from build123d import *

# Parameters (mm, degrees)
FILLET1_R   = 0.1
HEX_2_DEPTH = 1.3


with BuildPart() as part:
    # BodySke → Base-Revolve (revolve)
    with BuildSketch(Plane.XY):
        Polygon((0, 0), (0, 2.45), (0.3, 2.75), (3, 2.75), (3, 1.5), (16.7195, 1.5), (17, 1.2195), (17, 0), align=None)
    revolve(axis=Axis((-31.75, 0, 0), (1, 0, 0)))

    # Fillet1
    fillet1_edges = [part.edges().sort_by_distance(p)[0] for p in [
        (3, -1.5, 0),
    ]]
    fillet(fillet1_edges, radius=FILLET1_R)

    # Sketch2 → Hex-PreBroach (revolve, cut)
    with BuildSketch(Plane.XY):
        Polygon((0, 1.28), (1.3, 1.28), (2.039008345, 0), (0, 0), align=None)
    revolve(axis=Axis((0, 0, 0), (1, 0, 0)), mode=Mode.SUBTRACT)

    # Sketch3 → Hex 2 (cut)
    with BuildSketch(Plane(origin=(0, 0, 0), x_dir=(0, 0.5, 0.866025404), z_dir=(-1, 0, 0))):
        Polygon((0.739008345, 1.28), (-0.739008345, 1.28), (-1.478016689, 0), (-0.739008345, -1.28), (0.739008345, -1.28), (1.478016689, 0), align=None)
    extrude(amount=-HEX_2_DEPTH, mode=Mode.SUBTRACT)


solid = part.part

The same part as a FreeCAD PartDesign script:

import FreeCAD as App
import Part
import Sketcher
from FreeCAD import Vector
Q = App.Units.Quantity


def edges_at(feature, points):
    """Names of the edges that pass closest to the given points."""
    edges = feature.Shape.Edges
    near = lambda p: min(range(len(edges)), key=lambda i: edges[i].distToShape(Part.Vertex(*p))[0])
    return sorted({f"Edge{near(p) + 1}" for p in points})

doc = App.newDocument("Part")
params = doc.addObject("Spreadsheet::Sheet", "Params")
for row, (alias, value) in enumerate([
    ("sketch1_width", "17 mm"),
    ("sketch1_width2", "2.7 mm"),
    ("sketch1_height", "2.45 mm"),
    ("sketch1_height2", "1.25 mm"),
    ("revolution_angle", "360 deg"),
    ("fillet_radius", "0.1 mm"),
    ("sketch2_width", "1.3 mm"),
    ("sketch2_height", "1.28 mm"),
    ("groove_angle", "360 deg"),
    ("pocket1_length", "1.3 mm"),
], start=1):
    params.set(f"A{row}", alias)
    params.set(f"B{row}", "=" + value)
    params.setAlias(f"B{row}", alias)

body = doc.addObject("PartDesign::Body", "Body")

sketch1 = body.newObject("Sketcher::SketchObject", "Sketch")
sketch1.AttachmentSupport = (doc.getObject("XY_Plane"), [""])
sketch1.MapMode = "FlatFace"
sketch1.addGeometry([
    Part.LineSegment(Vector(0, 2.45, 0), Vector(0, 0, 0)),
    Part.LineSegment(Vector(0, 0, 0), Vector(17, 0, 0)),
    Part.LineSegment(Vector(17, 0, 0), Vector(17, 1.22, 0)),
    Part.LineSegment(Vector(17, 1.22, 0), Vector(16.72, 1.5, 0)),
    Part.LineSegment(Vector(16.72, 1.5, 0), Vector(3, 1.5, 0)),
    Part.LineSegment(Vector(3, 1.5, 0), Vector(3, 2.75, 0)),
    Part.LineSegment(Vector(3, 2.75, 0), Vector(0.3, 2.75, 0)),
    Part.LineSegment(Vector(0.3, 2.75, 0), Vector(0, 2.45, 0)),
], False)
sketch1.addConstraint([
    Sketcher.Constraint("Coincident", 0, 2, 1, 1),
    Sketcher.Constraint("Coincident", 1, 2, 2, 1),
    Sketcher.Constraint("Coincident", 2, 2, 3, 1),
    Sketcher.Constraint("Coincident", 3, 2, 4, 1),
    Sketcher.Constraint("Coincident", 4, 2, 5, 1),
    Sketcher.Constraint("Coincident", 5, 2, 6, 1),
    Sketcher.Constraint("Coincident", 6, 2, 7, 1),
    Sketcher.Constraint("Coincident", 7, 2, 0, 1),
    Sketcher.Constraint("Vertical", 0),
    Sketcher.Constraint("Horizontal", 1),
    Sketcher.Constraint("Vertical", 2),
    Sketcher.Constraint("Horizontal", 4),
    Sketcher.Constraint("Vertical", 5),
    Sketcher.Constraint("Horizontal", 6),
    Sketcher.Constraint("Coincident", 0, 2, -1, 1),
    Sketcher.Constraint("Perpendicular", 3, 7),
    Sketcher.Constraint("DistanceX", 1, 1, 1, 2, Q("17 mm")),
    Sketcher.Constraint("Angle", 3, Q("135 deg")),
    Sketcher.Constraint("DistanceX", 6, 2, 6, 1, Q("2.7 mm")),
    Sketcher.Constraint("DistanceX", -1, 1, 4, 2, Q("3 mm")),
    Sketcher.Constraint("DistanceY", 0, 2, 0, 1, Q("2.45 mm")),
    Sketcher.Constraint("DistanceY", 5, 1, 5, 2, Q("1.25 mm")),
    Sketcher.Constraint("DistanceX", 4, 2, 4, 1, Q("13.7195 mm")),
])
sketch1.setExpression("Constraints[16]", "Params.sketch1_width")
sketch1.setExpression("Constraints[18]", "Params.sketch1_width2")
sketch1.setExpression("Constraints[20]", "Params.sketch1_height")
sketch1.setExpression("Constraints[21]", "Params.sketch1_height2")
revolution = body.newObject("PartDesign::Revolution", "Revolution")
revolution.Profile = sketch1
revolution.ReferenceAxis = (sketch1, ["H_Axis"])
revolution.setExpression("Angle", "Params.revolution_angle")
doc.recompute()

fillet = body.newObject("PartDesign::Fillet", "Fillet")
fillet.Base = (revolution, edges_at(revolution, [(3, -1.5, 0)]))
fillet.setExpression("Radius", "Params.fillet_radius")

sketch2 = body.newObject("Sketcher::SketchObject", "Sketch001")
sketch2.AttachmentSupport = (doc.getObject("XY_Plane"), [""])
sketch2.MapMode = "FlatFace"
sketch2.addGeometry([
    Part.LineSegment(Vector(1.3, 1.3, 0), Vector(0, 1.3, 0)),
    Part.LineSegment(Vector(0, 1.3, 0), Vector(0, 0, 0)),
    Part.LineSegment(Vector(0, 0, 0), Vector(2, 0, 0)),
    Part.LineSegment(Vector(2, 0, 0), Vector(1.3, 1.3, 0)),
], False)
sketch2.addConstraint([
    Sketcher.Constraint("Coincident", 0, 2, 1, 1),
    Sketcher.Constraint("Coincident", 1, 2, 2, 1),
    Sketcher.Constraint("Coincident", 2, 2, 3, 1),
    Sketcher.Constraint("Coincident", 3, 2, 0, 1),
    Sketcher.Constraint("Horizontal", 0),
    Sketcher.Constraint("Vertical", 1),
    Sketcher.Constraint("Horizontal", 2),
    Sketcher.Constraint("Coincident", 1, 2, -1, 1),
    Sketcher.Constraint("Angle", 3, Q("120 deg")),
    Sketcher.Constraint("DistanceX", 0, 2, 0, 1, Q("1.3 mm")),
    Sketcher.Constraint("DistanceY", 1, 2, 1, 1, Q("1.28 mm")),
])
sketch2.setExpression("Constraints[9]", "Params.sketch2_width")
sketch2.setExpression("Constraints[10]", "Params.sketch2_height")
groove = body.newObject("PartDesign::Groove", "Groove")
groove.Profile = sketch2
groove.ReferenceAxis = (sketch2, ["H_Axis"])
groove.setExpression("Angle", "Params.groove_angle")

sketch3 = body.newObject("Sketcher::SketchObject", "Sketch002")
sketch3.AttachmentSupport = (doc.getObject("YZ_Plane"), [""])
sketch3.MapMode = "FlatFace"
sketch3.addGeometry([
    Part.LineSegment(Vector(1.5, 0, 0), Vector(0.7, -1.3, 0)),
    Part.LineSegment(Vector(0.7, -1.3, 0), Vector(-0.7, -1.3, 0)),
    Part.LineSegment(Vector(-0.7, -1.3, 0), Vector(-1.5, 0, 0)),
    Part.LineSegment(Vector(-1.5, 0, 0), Vector(-0.7, 1.3, 0)),
    Part.LineSegment(Vector(-0.7, 1.3, 0), Vector(0.7, 1.3, 0)),
    Part.LineSegment(Vector(0.7, 1.3, 0), Vector(1.5, 0, 0)),
], False)
sketch3.addConstraint([
    Sketcher.Constraint("Coincident", 0, 2, 1, 1),
    Sketcher.Constraint("Coincident", 1, 2, 2, 1),
    Sketcher.Constraint("Coincident", 2, 2, 3, 1),
    Sketcher.Constraint("Coincident", 3, 2, 4, 1),
    Sketcher.Constraint("Coincident", 4, 2, 5, 1),
    Sketcher.Constraint("Coincident", 5, 2, 0, 1),
    Sketcher.Constraint("Horizontal", 1),
    Sketcher.Constraint("Horizontal", 4),
    Sketcher.Constraint("Symmetric", 0, 2, 3, 2, -1, 1),
    Sketcher.Constraint("Symmetric", 2, 2, 5, 2, -1, 1),
    Sketcher.Constraint("PointOnObject", 2, 2, -1),
    Sketcher.Constraint("Parallel", 2, 5),
    Sketcher.Constraint("Vertical", 1, 2, 3, 2),
    Sketcher.Constraint("Angle", 0, Q("-120 deg")),
    Sketcher.Constraint("DistanceY", 0, 2, -1, 1, Q("1.28 mm")),
    Sketcher.Constraint("DistanceX", 1, 2, 1, 1, Q("1.478017 mm")),
])
pocket1 = body.newObject("PartDesign::Pocket", "Pocket")
pocket1.Profile = sketch3
pocket1.setExpression("Length", "Params.pocket1_length")
pocket1.Reversed = True

doc.recompute()
